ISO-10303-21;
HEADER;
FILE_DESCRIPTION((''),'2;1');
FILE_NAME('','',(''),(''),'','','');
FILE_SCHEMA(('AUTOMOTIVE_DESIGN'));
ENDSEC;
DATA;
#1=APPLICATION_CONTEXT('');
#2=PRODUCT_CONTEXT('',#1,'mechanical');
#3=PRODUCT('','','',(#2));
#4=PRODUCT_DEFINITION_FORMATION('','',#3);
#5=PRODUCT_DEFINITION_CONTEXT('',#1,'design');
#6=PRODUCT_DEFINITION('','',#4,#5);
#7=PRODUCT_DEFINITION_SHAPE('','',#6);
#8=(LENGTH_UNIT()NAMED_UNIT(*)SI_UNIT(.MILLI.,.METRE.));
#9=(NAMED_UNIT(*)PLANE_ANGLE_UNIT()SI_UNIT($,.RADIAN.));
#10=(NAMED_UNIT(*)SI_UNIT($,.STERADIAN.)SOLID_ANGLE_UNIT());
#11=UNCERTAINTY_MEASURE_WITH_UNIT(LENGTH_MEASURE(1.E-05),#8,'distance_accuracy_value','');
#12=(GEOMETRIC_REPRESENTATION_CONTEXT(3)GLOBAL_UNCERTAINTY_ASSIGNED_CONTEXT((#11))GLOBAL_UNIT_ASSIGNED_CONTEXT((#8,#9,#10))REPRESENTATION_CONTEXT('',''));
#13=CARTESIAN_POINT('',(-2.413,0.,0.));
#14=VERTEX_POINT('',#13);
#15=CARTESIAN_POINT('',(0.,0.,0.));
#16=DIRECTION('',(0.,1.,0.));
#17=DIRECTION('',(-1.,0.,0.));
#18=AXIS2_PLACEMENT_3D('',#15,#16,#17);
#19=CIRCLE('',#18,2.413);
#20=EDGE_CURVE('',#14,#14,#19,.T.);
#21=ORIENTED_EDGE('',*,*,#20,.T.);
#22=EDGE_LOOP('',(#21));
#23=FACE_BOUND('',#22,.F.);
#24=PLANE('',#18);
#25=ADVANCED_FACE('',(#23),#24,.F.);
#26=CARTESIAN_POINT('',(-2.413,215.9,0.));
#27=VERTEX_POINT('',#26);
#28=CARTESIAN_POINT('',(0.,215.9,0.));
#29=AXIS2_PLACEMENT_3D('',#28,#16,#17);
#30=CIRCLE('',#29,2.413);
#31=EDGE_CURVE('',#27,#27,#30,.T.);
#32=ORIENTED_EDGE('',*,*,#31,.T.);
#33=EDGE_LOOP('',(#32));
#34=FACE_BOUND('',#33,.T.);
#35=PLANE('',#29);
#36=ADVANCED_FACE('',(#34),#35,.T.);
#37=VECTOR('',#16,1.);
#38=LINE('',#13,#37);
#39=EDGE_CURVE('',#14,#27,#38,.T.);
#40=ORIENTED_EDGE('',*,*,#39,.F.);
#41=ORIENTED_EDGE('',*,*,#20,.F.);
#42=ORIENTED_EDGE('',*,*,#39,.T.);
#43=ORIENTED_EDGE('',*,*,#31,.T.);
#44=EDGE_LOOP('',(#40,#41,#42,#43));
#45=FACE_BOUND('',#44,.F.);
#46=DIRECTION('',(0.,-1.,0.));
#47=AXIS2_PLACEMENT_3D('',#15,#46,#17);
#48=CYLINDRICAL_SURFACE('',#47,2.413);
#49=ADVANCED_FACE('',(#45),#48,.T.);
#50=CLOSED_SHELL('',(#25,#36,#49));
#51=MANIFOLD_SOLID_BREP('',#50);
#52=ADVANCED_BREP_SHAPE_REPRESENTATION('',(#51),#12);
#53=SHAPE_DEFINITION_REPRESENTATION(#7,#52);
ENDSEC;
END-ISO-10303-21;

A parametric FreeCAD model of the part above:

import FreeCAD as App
import Part
import Sketcher

V = App.Vector
Q = App.Units.Quantity

doc = App.newDocument("Part")
params = doc.addObject("Spreadsheet::Sheet", "Params")
for row, (alias, value) in enumerate([
    ("sketch1_diameter", "0.19 in"),
    ("pad1_length", "8.5 in"),
], start=1):
    params.set(f"A{row}", alias)
    params.set(f"B{row}", "=" + value)
    params.setAlias(f"B{row}", alias)

body = doc.addObject("PartDesign::Body", "Body")

# Sketch on XZ plane
sketch1 = body.newObject("Sketcher::SketchObject", "Sketch")
sketch1.AttachmentSupport = (doc.getObject("XZ_Plane"), [""])
sketch1.MapMode = "FlatFace"
sketch1.addGeometry(Part.Circle(V(0, 0, 0), V(0, 0, 1), 2.4), False)
sketch1.addConstraint(Sketcher.Constraint("Coincident", 0, 3, -1, 1))
sketch1.addConstraint(Sketcher.Constraint("Diameter", 0, Q("0.19 in")))
sketch1.setExpression("Constraints[1]", "Params.sketch1_diameter")
pad1 = body.newObject("PartDesign::Pad", "Pad")
pad1.Profile = sketch1
pad1.setExpression("Length", "Params.pad1_length")
pad1.Reversed = True

doc.recompute()
